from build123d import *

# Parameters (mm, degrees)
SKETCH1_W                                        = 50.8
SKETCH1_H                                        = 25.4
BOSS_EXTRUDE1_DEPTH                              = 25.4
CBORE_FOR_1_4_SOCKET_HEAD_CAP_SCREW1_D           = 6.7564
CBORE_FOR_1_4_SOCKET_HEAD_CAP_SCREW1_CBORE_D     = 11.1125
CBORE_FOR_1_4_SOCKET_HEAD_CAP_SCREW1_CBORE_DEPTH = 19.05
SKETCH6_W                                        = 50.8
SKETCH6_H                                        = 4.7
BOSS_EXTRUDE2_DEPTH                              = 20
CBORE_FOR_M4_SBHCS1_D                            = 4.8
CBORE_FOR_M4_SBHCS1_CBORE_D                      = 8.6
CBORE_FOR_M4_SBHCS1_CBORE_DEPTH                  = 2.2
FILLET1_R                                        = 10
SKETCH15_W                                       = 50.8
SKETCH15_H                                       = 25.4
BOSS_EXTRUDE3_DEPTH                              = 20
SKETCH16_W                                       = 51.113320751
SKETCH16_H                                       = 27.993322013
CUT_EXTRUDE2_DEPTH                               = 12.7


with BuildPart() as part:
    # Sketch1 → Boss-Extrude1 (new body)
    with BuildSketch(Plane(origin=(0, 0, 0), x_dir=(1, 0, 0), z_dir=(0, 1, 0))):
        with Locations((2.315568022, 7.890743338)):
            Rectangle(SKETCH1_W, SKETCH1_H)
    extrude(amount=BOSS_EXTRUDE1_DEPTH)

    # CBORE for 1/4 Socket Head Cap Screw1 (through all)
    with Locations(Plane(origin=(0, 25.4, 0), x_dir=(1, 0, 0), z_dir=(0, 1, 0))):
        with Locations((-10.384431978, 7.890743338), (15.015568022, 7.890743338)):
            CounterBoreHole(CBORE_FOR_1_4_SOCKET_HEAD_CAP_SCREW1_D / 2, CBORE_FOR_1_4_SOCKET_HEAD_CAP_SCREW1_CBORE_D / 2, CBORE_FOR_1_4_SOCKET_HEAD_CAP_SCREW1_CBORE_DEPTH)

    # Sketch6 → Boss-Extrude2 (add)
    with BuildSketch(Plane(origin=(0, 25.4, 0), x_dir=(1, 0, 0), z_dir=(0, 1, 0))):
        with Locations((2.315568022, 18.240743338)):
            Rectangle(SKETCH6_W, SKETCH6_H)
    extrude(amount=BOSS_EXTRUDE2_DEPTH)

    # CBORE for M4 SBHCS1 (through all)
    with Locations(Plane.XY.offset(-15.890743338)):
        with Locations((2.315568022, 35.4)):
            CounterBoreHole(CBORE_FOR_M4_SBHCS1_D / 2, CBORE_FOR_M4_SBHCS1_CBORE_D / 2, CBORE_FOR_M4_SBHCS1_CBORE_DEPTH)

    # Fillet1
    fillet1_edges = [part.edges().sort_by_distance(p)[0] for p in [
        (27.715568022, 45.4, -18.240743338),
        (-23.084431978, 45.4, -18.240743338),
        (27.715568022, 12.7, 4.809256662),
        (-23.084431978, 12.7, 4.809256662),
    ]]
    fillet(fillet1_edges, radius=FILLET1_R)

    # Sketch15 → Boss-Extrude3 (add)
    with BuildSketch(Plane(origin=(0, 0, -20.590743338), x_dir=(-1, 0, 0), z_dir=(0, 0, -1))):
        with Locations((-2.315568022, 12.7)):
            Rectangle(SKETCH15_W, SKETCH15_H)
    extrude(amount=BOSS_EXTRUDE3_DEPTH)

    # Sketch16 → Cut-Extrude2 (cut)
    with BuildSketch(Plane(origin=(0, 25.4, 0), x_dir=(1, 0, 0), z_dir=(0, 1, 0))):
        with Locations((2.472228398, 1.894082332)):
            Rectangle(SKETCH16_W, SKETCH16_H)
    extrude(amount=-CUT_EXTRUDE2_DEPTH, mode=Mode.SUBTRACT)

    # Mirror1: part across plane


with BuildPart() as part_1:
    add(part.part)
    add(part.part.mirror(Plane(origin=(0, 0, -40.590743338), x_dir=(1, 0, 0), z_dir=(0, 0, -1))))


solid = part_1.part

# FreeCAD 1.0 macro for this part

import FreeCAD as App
import Part
import Sketcher
from FreeCAD import Vector


def edges_at(feature, points):
    """Names of the edges that pass closest to the given points."""
    edges = feature.Shape.Edges
    near = lambda p: min(range(len(edges)), key=lambda i: edges[i].distToShape(Part.Vertex(*p))[0])
    return sorted({f"Edge{near(p) + 1}" for p in points})

doc = App.newDocument("Part")
params = doc.addObject("Spreadsheet::Sheet", "Params")
for row, (alias, value) in enumerate([
    ("sketch1_width", "50.8 mm"),
    ("sketch1_height", "25.4 mm"),
    ("pad1_length", "25.4 mm"),
    ("hole_diameter", "6.7564 mm"),
    ("hole_cbore_diameter", "11.1125 mm"),
    ("hole_cbore_depth", "19.05 mm"),
    ("sketch3_width", "50.8 mm"),
    ("sketch3_height", "4.7 mm"),
    ("pad2_length", "20 mm"),
    ("sketch4_diameter", "4.8 mm"),
    ("hole2_diameter", "4.8 mm"),
    ("hole2_cbore_diameter", "8.6 mm"),
    ("hole2_cbore_depth", "2.2 mm"),
    ("fillet_radius", "10 mm"),
    ("sketch5_width", "50.8 mm"),
    ("sketch5_height", "25.4 mm"),
    ("pad3_length", "20 mm"),
    ("pocket1_length", "12.7 mm"),
], start=1):
    params.set(f"A{row}", alias)
    params.set(f"B{row}", "=" + value)
    params.setAlias(f"B{row}", alias)

body = doc.addObject("PartDesign::Body", "Body")

sketch1 = body.newObject("Sketcher::SketchObject", "Sketch")
sketch1.AttachmentSupport = (doc.getObject("XZ_Plane"), [""])
sketch1.MapMode = "FlatFace"
sketch1.addGeometry(Part.LineSegment(Vector(-23, -21, 0), Vector(-23, 5, 0)), False)
sketch1.addGeometry(Part.LineSegment(Vector(-23, 5, 0), Vector(28, 5, 0)), False)
sketch1.addGeometry(Part.LineSegment(Vector(28, 5, 0), Vector(28, -21, 0)), False)
sketch1.addGeometry(Part.LineSegment(Vector(28, -21, 0), Vector(-23, -21, 0)), False)
sketch1.addConstraint(Sketcher.Constraint("Coincident", 0, 2, 1, 1))
sketch1.addConstraint(Sketcher.Constraint("Coincident", 1, 2, 2, 1))
sketch1.addConstraint(Sketcher.Constraint("Coincident", 2, 2, 3, 1))
sketch1.addConstraint(Sketcher.Constraint("Coincident", 3, 2, 0, 1))
sketch1.addConstraint(Sketcher.Constraint("Vertical", 0))
sketch1.addConstraint(Sketcher.Constraint("Horizontal", 1))
sketch1.addConstraint(Sketcher.Constraint("Vertical", 2))
sketch1.addConstraint(Sketcher.Constraint("Horizontal", 3))
sketch1.addConstraint(Sketcher.Constraint("DistanceX", 1, 1, 1, 2, 50.8))
sketch1.addConstraint(Sketcher.Constraint("DistanceY", 0, 1, 0, 2, 25.4))
sketch1.addConstraint(Sketcher.Constraint("DistanceX", 0, 2, -1, 1, 23.084432))
sketch1.addConstraint(Sketcher.Constraint("DistanceY", -1, 1, 0, 2, 4.809257))
sketch1.setExpression("Constraints[8]", "Params.sketch1_width")
sketch1.setExpression("Constraints[9]", "Params.sketch1_height")
pad1 = body.newObject("PartDesign::Pad", "Pad")
pad1.Profile = sketch1
pad1.setExpression("Length", "Params.pad1_length")
pad1.Reversed = True

sketch2 = body.newObject("Sketcher::SketchObject", "Sketch001")
sketch2.AttachmentSupport = (doc.getObject("XZ_Plane"), [""])
sketch2.MapMode = "FlatFace"
sketch2.AttachmentOffset = App.Placement(Vector(0, 0, -25.4), App.Rotation())
sketch2.addGeometry(Part.Circle(Vector(-10.4, -7.9, 0), Vector(0, 0, 1), 3.4), False)
sketch2.addGeometry(Part.Circle(Vector(15, -7.9, 0), Vector(0, 0, 1), 3.4), False)
sketch2.addConstraint(Sketcher.Constraint("Equal", 0, 1))
sketch2.addConstraint(Sketcher.Constraint("Horizontal", 0, 3, 1, 3))
sketch2.addConstraint(Sketcher.Constraint("Diameter", 0, 6.7564))
sketch2.addConstraint(Sketcher.Constraint("DistanceX", 0, 3, 1, 3, 25.4))
sketch2.addConstraint(Sketcher.Constraint("DistanceX", 0, 3, -1, 1, 10.384432))
sketch2.addConstraint(Sketcher.Constraint("DistanceY", 0, 3, -1, 1, 7.890743))
doc.recompute()
hole = body.newObject("PartDesign::Hole", "Hole")
hole.Profile = sketch2
hole.ThreadType = "None"
hole.setExpression("Diameter", "Params.hole_diameter")
hole.DepthType = "ThroughAll"
hole.HoleCutType = "Counterbore"
hole.setExpression("HoleCutDiameter", "Params.hole_cbore_diameter")
hole.setExpression("HoleCutDepth", "Params.hole_cbore_depth")
hole.Reversed = True

sketch3 = body.newObject("Sketcher::SketchObject", "Sketch002")
sketch3.AttachmentSupport = (doc.getObject("XZ_Plane"), [""])
sketch3.MapMode = "FlatFace"
sketch3.AttachmentOffset = App.Placement(Vector(0, 0, -25.4), App.Rotation())
sketch3.addGeometry(Part.LineSegment(Vector(-23.1, -20.6, 0), Vector(-23.1, -15.9, 0)), False)
sketch3.addGeometry(Part.LineSegment(Vector(-23.1, -15.9, 0), Vector(27.7, -15.9, 0)), False)
sketch3.addGeometry(Part.LineSegment(Vector(27.7, -15.9, 0), Vector(27.7, -20.6, 0)), False)
sketch3.addGeometry(Part.LineSegment(Vector(27.7, -20.6, 0), Vector(-23.1, -20.6, 0)), False)
sketch3.addConstraint(Sketcher.Constraint("Coincident", 0, 2, 1, 1))
sketch3.addConstraint(Sketcher.Constraint("Coincident", 1, 2, 2, 1))
sketch3.addConstraint(Sketcher.Constraint("Coincident", 2, 2, 3, 1))
sketch3.addConstraint(Sketcher.Constraint("Coincident", 3, 2, 0, 1))
sketch3.addConstraint(Sketcher.Constraint("Vertical", 0))
sketch3.addConstraint(Sketcher.Constraint("Horizontal", 1))
sketch3.addConstraint(Sketcher.Constraint("Vertical", 2))
sketch3.addConstraint(Sketcher.Constraint("Horizontal", 3))
sketch3.addConstraint(Sketcher.Constraint("DistanceX", 1, 1, 1, 2, 50.8))
sketch3.addConstraint(Sketcher.Constraint("DistanceY", 0, 1, 0, 2, 4.7))
sketch3.addConstraint(Sketcher.Constraint("DistanceX", 0, 2, -1, 1, 23.084432))
sketch3.addConstraint(Sketcher.Constraint("DistanceY", 0, 2, -1, 1, 15.890743))
sketch3.setExpression("Constraints[8]", "Params.sketch3_width")
sketch3.setExpression("Constraints[9]", "Params.sketch3_height")
pad2 = body.newObject("PartDesign::Pad", "Pad001")
pad2.Profile = sketch3
pad2.setExpression("Length", "Params.pad2_length")
pad2.Reversed = True

sketch4 = body.newObject("Sketcher::SketchObject", "Sketch003")
sketch4.AttachmentSupport = (doc.getObject("XY_Plane"), [""])
sketch4.MapMode = "FlatFace"
sketch4.AttachmentOffset = App.Placement(Vector(0, 0, -15.890743), App.Rotation())
sketch4.addGeometry(Part.Circle(Vector(2.3, 35.4, 0), Vector(0, 0, 1), 2.4), False)
sketch4.addConstraint(Sketcher.Constraint("Diameter", 0, 4.8))
sketch4.addConstraint(Sketcher.Constraint("DistanceY", -1, 1, 0, 3, 35.4))
sketch4.addConstraint(Sketcher.Constraint("DistanceX", -1, 1, 0, 3, 2.315568))
sketch4.setExpression("Constraints[0]", "Params.sketch4_diameter")
doc.recompute()
hole2 = body.newObject("PartDesign::Hole", "Hole001")
hole2.Profile = sketch4
hole2.ThreadType = "None"
hole2.setExpression("Diameter", "Params.hole2_diameter")
hole2.DepthType = "ThroughAll"
hole2.HoleCutType = "Counterbore"
hole2.setExpression("HoleCutDiameter", "Params.hole2_cbore_diameter")
hole2.setExpression("HoleCutDepth", "Params.hole2_cbore_depth")
doc.recompute()

fillet = body.newObject("PartDesign::Fillet", "Fillet")
fillet.Base = (hole2, edges_at(hole2, [
    (27.716, 45.4, -18.241),
    (-23.084, 45.4, -18.241),
    (27.716, 12.7, 4.809),
    (-23.084, 12.7, 4.809),
]))
fillet.setExpression("Radius", "Params.fillet_radius")

sketch5 = body.newObject("Sketcher::SketchObject", "Sketch004")
sketch5.AttachmentSupport = (doc.getObject("XY_Plane"), [""])
sketch5.MapMode = "FlatFace"
sketch5.AttachmentOffset = App.Placement(Vector(0, 0, -20.590743), App.Rotation())
sketch5.addGeometry(Part.LineSegment(Vector(28, 25, 0), Vector(28, 0, 0)), False)
sketch5.addGeometry(Part.LineSegment(Vector(28, 0, 0), Vector(-23, 0, 0)), False)
sketch5.addGeometry(Part.LineSegment(Vector(-23, 0, 0), Vector(-23, 25, 0)), False)
sketch5.addGeometry(Part.LineSegment(Vector(-23, 25, 0), Vector(28, 25, 0)), False)
sketch5.addConstraint(Sketcher.Constraint("Coincident", 0, 2, 1, 1))
sketch5.addConstraint(Sketcher.Constraint("Coincident", 1, 2, 2, 1))
sketch5.addConstraint(Sketcher.Constraint("Coincident", 2, 2, 3, 1))
sketch5.addConstraint(Sketcher.Constraint("Coincident", 3, 2, 0, 1))
sketch5.addConstraint(Sketcher.Constraint("Vertical", 0))
sketch5.addConstraint(Sketcher.Constraint("Horizontal", 1))
sketch5.addConstraint(Sketcher.Constraint("Vertical", 2))
sketch5.addConstraint(Sketcher.Constraint("Horizontal", 3))
sketch5.addConstraint(Sketcher.Constraint("PointOnObject", 0, 2, -1))
sketch5.addConstraint(Sketcher.Constraint("DistanceX", 1, 2, 1, 1, 50.8))
sketch5.addConstraint(Sketcher.Constraint("DistanceY", 0, 2, 0, 1, 25.4))
sketch5.addConstraint(Sketcher.Constraint("DistanceX", -1, 1, 0, 2, 27.715568))
sketch5.setExpression("Constraints[9]", "Params.sketch5_width")
sketch5.setExpression("Constraints[10]", "Params.sketch5_height")
pad3 = body.newObject("PartDesign::Pad", "Pad002")
pad3.Profile = sketch5
pad3.setExpression("Length", "Params.pad3_length")
pad3.Reversed = True

sketch6 = body.newObject("Sketcher::SketchObject", "Sketch005")
sketch6.AttachmentSupport = (doc.getObject("XZ_Plane"), [""])
sketch6.MapMode = "FlatFace"
sketch6.AttachmentOffset = App.Placement(Vector(0, 0, -25.4), App.Rotation())
sketch6.addGeometry(Part.LineSegment(Vector(-23, -16, 0), Vector(-23, 12, 0)), False)
sketch6.addGeometry(Part.LineSegment(Vector(-23, 12, 0), Vector(28, 12, 0)), False)
sketch6.addGeometry(Part.LineSegment(Vector(28, 12, 0), Vector(28, -16, 0)), False)
sketch6.addGeometry(Part.LineSegment(Vector(28, -16, 0), Vector(-23, -16, 0)), False)
sketch6.addConstraint(Sketcher.Constraint("Coincident", 0, 2, 1, 1))
sketch6.addConstraint(Sketcher.Constraint("Coincident", 1, 2, 2, 1))
sketch6.addConstraint(Sketcher.Constraint("Coincident", 2, 2, 3, 1))
sketch6.addConstraint(Sketcher.Constraint("Coincident", 3, 2, 0, 1))
sketch6.addConstraint(Sketcher.Constraint("Vertical", 0))
sketch6.addConstraint(Sketcher.Constraint("Horizontal", 1))
sketch6.addConstraint(Sketcher.Constraint("Vertical", 2))
sketch6.addConstraint(Sketcher.Constraint("Horizontal", 3))
sketch6.addConstraint(Sketcher.Constraint("DistanceX", 1, 1, 1, 2, 51.113321))
sketch6.addConstraint(Sketcher.Constraint("DistanceY", 0, 1, 0, 2, 27.993322))
sketch6.addConstraint(Sketcher.Constraint("DistanceX", 0, 2, -1, 1, 23.084432))
sketch6.addConstraint(Sketcher.Constraint("DistanceY", -1, 1, 0, 2, 12.102579))
pocket1 = body.newObject("PartDesign::Pocket", "Pocket")
pocket1.Profile = sketch6
pocket1.setExpression("Length", "Params.pocket1_length")
pocket1.Reversed = True
body2 = doc.addObject("PartDesign::Body", "Body001")
doc.recompute()

body2.BaseFeature = body
doc.recompute()

mirroring = doc.addObject("Part::Mirroring", "Mirroring")
mirroring.Source = body
mirroring.Base = Vector(0, 0, -40.590743)
mirroring.Normal = Vector(0, 0, -1)
body3 = doc.addObject("PartDesign::Body", "Body002")
body3.BaseFeature = mirroring
boolean = body2.newObject("PartDesign::Boolean", "Boolean")
boolean.Type = "Fuse"
boolean.addObjects([body3])
doc.recompute()
mirroring.Visibility = False

doc.recompute()
